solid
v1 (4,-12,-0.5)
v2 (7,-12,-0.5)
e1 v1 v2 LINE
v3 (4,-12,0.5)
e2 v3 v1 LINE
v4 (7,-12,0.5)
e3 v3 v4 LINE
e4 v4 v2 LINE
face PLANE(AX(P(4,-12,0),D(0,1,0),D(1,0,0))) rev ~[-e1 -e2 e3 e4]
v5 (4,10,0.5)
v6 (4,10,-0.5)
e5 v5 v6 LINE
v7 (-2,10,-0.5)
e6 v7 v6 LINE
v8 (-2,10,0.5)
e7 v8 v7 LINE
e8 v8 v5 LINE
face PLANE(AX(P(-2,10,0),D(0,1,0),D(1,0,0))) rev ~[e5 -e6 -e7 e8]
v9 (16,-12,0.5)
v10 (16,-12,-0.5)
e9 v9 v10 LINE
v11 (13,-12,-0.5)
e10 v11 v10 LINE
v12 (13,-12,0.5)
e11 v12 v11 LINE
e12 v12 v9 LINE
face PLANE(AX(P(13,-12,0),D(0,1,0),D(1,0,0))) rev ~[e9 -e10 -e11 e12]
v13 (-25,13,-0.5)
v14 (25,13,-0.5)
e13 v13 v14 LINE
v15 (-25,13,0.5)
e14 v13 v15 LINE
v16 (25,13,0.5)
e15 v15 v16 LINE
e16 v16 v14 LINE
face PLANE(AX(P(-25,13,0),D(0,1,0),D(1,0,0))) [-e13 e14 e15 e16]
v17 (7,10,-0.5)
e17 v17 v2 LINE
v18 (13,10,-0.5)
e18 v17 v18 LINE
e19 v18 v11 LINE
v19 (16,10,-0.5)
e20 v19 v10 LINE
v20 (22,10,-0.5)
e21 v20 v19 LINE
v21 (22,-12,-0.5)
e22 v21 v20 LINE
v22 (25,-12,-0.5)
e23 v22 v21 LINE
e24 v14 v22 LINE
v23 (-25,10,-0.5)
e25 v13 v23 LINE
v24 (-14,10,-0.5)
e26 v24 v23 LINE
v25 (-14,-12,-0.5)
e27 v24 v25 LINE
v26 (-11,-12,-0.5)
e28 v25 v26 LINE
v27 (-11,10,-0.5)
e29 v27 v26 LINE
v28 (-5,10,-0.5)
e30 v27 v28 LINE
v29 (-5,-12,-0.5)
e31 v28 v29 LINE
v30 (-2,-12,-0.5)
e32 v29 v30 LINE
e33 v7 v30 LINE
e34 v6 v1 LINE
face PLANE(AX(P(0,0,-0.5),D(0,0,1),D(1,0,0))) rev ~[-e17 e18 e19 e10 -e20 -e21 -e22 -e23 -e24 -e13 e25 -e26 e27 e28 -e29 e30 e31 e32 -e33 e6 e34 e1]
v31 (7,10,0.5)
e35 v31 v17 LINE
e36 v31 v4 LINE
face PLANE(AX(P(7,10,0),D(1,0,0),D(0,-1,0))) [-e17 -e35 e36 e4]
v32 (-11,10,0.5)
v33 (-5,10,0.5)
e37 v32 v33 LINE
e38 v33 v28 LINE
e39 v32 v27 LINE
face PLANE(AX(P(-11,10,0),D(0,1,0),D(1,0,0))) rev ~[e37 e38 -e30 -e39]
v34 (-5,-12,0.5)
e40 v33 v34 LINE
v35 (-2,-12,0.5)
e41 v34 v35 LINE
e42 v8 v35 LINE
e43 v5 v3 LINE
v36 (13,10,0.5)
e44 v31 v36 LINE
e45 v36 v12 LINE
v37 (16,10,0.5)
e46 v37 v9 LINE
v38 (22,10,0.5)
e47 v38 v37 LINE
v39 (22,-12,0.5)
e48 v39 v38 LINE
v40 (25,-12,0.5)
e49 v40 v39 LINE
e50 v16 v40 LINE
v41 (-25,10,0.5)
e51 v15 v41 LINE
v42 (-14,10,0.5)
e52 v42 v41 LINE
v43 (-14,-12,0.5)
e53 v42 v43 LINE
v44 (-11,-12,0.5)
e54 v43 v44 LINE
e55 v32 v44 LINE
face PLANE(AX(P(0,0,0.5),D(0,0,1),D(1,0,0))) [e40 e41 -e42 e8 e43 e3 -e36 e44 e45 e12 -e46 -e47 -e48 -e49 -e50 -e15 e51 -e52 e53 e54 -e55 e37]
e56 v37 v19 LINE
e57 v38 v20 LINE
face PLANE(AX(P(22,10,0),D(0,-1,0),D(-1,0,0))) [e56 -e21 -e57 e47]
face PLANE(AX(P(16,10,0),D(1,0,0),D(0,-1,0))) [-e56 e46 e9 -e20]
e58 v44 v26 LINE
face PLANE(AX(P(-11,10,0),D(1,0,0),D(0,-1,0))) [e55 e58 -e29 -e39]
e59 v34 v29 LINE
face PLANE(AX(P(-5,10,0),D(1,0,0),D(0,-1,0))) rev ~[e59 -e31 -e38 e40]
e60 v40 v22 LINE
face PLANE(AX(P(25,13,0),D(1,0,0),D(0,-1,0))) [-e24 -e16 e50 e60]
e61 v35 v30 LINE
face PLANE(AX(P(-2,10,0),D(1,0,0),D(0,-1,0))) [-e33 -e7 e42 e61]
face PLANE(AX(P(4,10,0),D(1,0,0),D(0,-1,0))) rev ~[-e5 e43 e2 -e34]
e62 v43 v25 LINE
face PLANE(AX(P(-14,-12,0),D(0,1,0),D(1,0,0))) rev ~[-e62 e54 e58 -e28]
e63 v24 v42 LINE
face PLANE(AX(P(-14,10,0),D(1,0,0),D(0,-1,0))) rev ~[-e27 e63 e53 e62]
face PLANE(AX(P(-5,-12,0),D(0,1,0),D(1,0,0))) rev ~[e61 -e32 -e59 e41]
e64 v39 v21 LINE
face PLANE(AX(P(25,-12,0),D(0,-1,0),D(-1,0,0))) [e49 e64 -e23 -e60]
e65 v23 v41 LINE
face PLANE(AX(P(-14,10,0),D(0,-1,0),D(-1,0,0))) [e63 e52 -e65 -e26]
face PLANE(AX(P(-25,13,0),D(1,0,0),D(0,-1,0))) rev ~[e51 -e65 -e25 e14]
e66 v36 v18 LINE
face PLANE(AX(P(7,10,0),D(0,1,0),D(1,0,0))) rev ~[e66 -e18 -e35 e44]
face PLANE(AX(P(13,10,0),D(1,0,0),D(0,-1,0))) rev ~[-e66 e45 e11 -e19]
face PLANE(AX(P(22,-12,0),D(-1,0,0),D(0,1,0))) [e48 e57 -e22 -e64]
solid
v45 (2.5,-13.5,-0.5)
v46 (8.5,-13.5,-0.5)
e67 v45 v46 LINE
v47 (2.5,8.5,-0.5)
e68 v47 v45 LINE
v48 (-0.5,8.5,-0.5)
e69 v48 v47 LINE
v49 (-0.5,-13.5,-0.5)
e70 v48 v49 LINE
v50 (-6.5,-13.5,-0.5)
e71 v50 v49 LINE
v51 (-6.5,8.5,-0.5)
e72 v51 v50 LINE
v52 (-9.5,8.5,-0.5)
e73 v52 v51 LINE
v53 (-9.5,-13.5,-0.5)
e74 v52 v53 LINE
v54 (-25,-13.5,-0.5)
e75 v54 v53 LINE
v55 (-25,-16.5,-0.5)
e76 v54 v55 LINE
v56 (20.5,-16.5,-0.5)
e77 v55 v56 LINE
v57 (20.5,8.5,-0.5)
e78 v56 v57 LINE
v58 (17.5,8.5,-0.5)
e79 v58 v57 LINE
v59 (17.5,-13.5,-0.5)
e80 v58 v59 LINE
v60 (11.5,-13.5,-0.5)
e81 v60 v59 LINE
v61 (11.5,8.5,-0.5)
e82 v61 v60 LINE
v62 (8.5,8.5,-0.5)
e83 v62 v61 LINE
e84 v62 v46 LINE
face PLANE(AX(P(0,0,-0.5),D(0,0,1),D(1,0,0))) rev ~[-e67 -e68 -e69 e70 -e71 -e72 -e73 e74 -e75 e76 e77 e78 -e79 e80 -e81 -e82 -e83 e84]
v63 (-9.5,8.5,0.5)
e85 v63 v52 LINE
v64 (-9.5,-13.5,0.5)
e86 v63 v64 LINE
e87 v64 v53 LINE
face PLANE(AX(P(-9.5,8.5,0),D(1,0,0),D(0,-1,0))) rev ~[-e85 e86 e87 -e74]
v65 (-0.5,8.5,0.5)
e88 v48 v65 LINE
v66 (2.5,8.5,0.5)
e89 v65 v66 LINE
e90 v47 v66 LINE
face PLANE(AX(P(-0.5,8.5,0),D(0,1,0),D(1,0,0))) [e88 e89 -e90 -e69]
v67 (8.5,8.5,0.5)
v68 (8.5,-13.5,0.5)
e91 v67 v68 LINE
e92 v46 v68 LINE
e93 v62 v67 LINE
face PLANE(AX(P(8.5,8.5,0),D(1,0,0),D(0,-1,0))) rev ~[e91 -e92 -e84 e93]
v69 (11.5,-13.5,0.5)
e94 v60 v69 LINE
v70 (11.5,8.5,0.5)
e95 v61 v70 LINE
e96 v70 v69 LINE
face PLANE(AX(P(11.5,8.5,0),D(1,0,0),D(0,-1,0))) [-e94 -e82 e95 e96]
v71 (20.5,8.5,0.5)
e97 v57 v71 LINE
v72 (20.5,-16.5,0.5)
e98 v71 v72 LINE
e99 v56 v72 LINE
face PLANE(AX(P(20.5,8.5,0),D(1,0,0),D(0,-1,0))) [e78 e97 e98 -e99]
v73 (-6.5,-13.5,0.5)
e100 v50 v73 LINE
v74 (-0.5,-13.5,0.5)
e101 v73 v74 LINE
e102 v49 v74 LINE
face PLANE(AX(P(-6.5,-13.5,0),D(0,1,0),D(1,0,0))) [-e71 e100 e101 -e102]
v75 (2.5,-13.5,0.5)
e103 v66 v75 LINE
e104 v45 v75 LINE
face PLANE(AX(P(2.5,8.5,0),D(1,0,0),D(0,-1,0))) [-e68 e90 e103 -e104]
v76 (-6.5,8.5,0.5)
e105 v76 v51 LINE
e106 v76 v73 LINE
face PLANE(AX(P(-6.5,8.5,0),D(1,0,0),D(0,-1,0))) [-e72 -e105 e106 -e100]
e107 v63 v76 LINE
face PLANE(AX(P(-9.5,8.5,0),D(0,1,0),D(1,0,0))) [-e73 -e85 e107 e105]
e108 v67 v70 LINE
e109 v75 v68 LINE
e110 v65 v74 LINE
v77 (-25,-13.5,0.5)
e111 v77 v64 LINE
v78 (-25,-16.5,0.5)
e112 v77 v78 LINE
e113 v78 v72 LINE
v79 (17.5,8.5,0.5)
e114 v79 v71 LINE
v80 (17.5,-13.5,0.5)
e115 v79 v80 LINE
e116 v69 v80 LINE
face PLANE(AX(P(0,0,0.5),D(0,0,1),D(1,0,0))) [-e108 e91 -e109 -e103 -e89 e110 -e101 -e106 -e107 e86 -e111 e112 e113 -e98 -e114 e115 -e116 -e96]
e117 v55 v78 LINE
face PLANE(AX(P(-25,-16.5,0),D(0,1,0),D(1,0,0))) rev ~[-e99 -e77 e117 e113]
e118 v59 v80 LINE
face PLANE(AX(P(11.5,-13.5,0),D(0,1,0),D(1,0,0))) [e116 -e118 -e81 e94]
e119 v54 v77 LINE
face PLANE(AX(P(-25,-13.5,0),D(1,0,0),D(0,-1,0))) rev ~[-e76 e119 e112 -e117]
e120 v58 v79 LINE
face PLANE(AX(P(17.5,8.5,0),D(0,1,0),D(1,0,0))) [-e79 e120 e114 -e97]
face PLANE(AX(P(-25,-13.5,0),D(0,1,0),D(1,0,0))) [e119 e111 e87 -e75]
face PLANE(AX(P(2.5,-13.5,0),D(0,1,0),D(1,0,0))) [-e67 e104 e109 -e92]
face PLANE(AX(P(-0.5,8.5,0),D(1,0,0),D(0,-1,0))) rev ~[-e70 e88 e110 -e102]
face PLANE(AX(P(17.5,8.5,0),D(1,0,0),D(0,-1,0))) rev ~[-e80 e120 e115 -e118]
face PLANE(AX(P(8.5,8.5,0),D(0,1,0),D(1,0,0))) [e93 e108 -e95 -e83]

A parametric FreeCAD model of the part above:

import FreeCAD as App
import Part
import Sketcher

V = App.Vector
Q = App.Units.Quantity


def add_polygon(sketch, points):
    """Adds a closed chain of lines whose ends are joined by coincident constraints."""
    first, n = sketch.GeometryCount, len(points)
    for a, b in zip(points, points[1:] + points[:1]):
        sketch.addGeometry(Part.LineSegment(App.Vector(*a, 0), App.Vector(*b, 0)), False)
    for i in range(n):
        sketch.addConstraint(Sketcher.Constraint("Coincident", first + i, 2, first + (i + 1) % n, 1))

doc = App.newDocument("Part")
body = doc.addObject("PartDesign::Body", "Body")
body.AllowCompound = True

# Sketch on XY plane
sketch1 = body.newObject("Sketcher::SketchObject", "Sketch")
sketch1.AttachmentSupport = (doc.getObject("XY_Plane"), [""])
sketch1.MapMode = "FlatFace"
add_polygon(sketch1, [(25, 13), (-25, 13), (-25, 10), (-14, 10), (-14, -12), (-11, -12), (-11, 10), (-5, 10), (-5, -12), (-2, -12), (-2, 10), (4, 10), (4, -12), (7, -12), (7, 10), (13, 10), (13, -12), (16, -12), (16, 10), (22, 10), (22, -12), (25, -12)])  # lines 0-21
add_polygon(sketch1, [(-9.5, -13.5), (-25, -13.5), (-25, -16.5), (20.5, -16.5), (20.5, 8.5), (17.5, 8.5), (17.5, -13.5), (11.5, -13.5), (11.5, 8.5), (8.5, 8.5), (8.5, -13.5), (2.5, -13.5), (2.5, 8.5), (-0.5, 8.5), (-0.5, -13.5), (-6.5, -13.5), (-6.5, 8.5), (-9.5, 8.5)])  # lines 22-39
sketch1.addConstraint([
    Sketcher.Constraint("Horizontal", 0),
    Sketcher.Constraint("Vertical", 1),
    Sketcher.Constraint("Horizontal", 2),
    Sketcher.Constraint("Vertical", 3),
    Sketcher.Constraint("Horizontal", 4),
    Sketcher.Constraint("Vertical", 5),
    Sketcher.Constraint("Horizontal", 6),
    Sketcher.Constraint("Vertical", 7),
    Sketcher.Constraint("Horizontal", 8),
    Sketcher.Constraint("Vertical", 9),
    Sketcher.Constraint("Horizontal", 10),
    Sketcher.Constraint("Vertical", 11),
    Sketcher.Constraint("Horizontal", 12),
    Sketcher.Constraint("Vertical", 13),
    Sketcher.Constraint("Horizontal", 14),
    Sketcher.Constraint("Vertical", 15),
    Sketcher.Constraint("Horizontal", 16),
    Sketcher.Constraint("Vertical", 17),
    Sketcher.Constraint("Horizontal", 18),
    Sketcher.Constraint("Vertical", 19),
    Sketcher.Constraint("Horizontal", 20),
    Sketcher.Constraint("Vertical", 21),
    Sketcher.Constraint("Horizontal", 22),
    Sketcher.Constraint("Vertical", 23),
    Sketcher.Constraint("Horizontal", 24),
    Sketcher.Constraint("Vertical", 25),
    Sketcher.Constraint("Horizontal", 26),
    Sketcher.Constraint("Vertical", 27),
    Sketcher.Constraint("Horizontal", 28),
    Sketcher.Constraint("Vertical", 29),
    Sketcher.Constraint("Horizontal", 30),
    Sketcher.Constraint("Vertical", 31),
    Sketcher.Constraint("Horizontal", 32),
    Sketcher.Constraint("Vertical", 33),
    Sketcher.Constraint("Horizontal", 34),
    Sketcher.Constraint("Vertical", 35),
    Sketcher.Constraint("Horizontal", 36),
    Sketcher.Constraint("Vertical", 37),
    Sketcher.Constraint("Horizontal", 38),
    Sketcher.Constraint("Vertical", 39),
    Sketcher.Constraint("Horizontal", 2, 2, 5, 2),
    Sketcher.Constraint("Horizontal", 4, 2, 7, 2),
    Sketcher.Constraint("Horizontal", 6, 2, 9, 2),
    Sketcher.Constraint("Horizontal", 8, 2, 11, 2),
    Sketcher.Constraint("Horizontal", 10, 2, 13, 2),
    Sketcher.Constraint("Horizontal", 12, 2, 15, 2),
    Sketcher.Constraint("Horizontal", 14, 2, 17, 2),
    Sketcher.Constraint("Horizontal", 16, 2, 19, 2),
    Sketcher.Constraint("Horizontal", 22, 2, 27, 2),
    Sketcher.Constraint("Horizontal", 26, 2, 29, 2),
    Sketcher.Constraint("Horizontal", 28, 2, 31, 2),
    Sketcher.Constraint("Horizontal", 30, 2, 33, 2),
    Sketcher.Constraint("Horizontal", 32, 2, 35, 2),
    Sketcher.Constraint("Horizontal", 34, 2, 37, 2),
    Sketcher.Constraint("Vertical", 1, 2, 22, 2),
    Sketcher.Constraint("Equal", 4, 8),
    Sketcher.Constraint("Equal", 6, 10),
    Sketcher.Constraint("Equal", 8, 12),
    Sketcher.Constraint("Equal", 10, 14),
    Sketcher.Constraint("Equal", 12, 16),
    Sketcher.Constraint("Equal", 14, 18),
    Sketcher.Constraint("Equal", 16, 20),
    Sketcher.Constraint("Equal", 20, 26),
    Sketcher.Constraint("Equal", 18, 28),
    Sketcher.Constraint("Equal", 26, 30),
    Sketcher.Constraint("Equal", 28, 32),
    Sketcher.Constraint("Equal", 30, 34),
    Sketcher.Constraint("Equal", 32, 36),
    Sketcher.Constraint("Equal", 34, 38),
    Sketcher.Constraint("Equal", 38, 1),
    Sketcher.Constraint("Equal", 1, 23),
    Sketcher.Constraint("Equal", 21, 25),
    Sketcher.Constraint("DistanceX", 0, 2, 0, 1, Q("50 mm")),
    Sketcher.Constraint("DistanceX", 2, 1, 2, 2, Q("11 mm")),
    Sketcher.Constraint("DistanceX", 4, 1, 4, 2, Q("3 mm")),
    Sketcher.Constraint("DistanceY", 21, 1, 21, 2, Q("25 mm")),
    Sketcher.Constraint("DistanceX", 0, 2, -1, 1, Q("25 mm")),
    Sketcher.Constraint("DistanceY", -1, 1, 1, 2, Q("10 mm")),
    Sketcher.Constraint("DistanceY", 22, 2, 3, 2, Q("1.5 mm")),
    Sketcher.Constraint("DistanceX", 24, 2, 19, 2, Q("1.5 mm")),
])
pad1 = body.newObject("PartDesign::Pad", "Pad")
pad1.Profile = sketch1
pad1.Length = 1
pad1.Midplane = True

doc.recompute()
